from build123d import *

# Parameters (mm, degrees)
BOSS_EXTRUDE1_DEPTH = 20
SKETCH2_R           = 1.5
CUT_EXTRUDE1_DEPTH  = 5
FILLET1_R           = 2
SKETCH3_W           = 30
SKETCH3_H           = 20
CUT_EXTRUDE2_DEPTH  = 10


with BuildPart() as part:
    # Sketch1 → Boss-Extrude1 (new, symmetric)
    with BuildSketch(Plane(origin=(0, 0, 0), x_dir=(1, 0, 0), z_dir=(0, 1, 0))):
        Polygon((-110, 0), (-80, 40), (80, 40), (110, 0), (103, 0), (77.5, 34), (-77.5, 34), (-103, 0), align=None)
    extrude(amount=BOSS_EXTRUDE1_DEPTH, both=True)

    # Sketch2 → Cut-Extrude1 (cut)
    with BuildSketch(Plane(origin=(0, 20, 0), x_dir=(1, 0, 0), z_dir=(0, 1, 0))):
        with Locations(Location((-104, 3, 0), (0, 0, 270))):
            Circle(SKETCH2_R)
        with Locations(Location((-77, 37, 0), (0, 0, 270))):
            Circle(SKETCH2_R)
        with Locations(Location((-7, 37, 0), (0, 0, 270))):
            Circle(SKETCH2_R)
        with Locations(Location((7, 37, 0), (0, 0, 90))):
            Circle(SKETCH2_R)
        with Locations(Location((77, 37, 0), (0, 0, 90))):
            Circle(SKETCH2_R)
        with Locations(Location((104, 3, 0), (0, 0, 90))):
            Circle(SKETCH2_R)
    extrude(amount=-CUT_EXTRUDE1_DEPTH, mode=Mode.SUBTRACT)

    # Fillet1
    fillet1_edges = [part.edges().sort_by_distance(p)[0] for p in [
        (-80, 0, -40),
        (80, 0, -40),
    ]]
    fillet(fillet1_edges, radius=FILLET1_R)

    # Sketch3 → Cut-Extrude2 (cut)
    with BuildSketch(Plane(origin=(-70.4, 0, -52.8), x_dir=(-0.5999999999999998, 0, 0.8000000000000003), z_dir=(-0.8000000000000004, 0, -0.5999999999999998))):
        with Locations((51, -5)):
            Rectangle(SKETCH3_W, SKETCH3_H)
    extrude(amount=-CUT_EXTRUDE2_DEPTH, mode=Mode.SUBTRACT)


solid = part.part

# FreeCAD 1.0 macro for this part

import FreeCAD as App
import Part
import Sketcher
Q = App.Units.Quantity


def edges_at(feature, points):
    """Names of the edges that pass closest to the given points."""
    edges = feature.Shape.Edges
    near = lambda p: min(range(len(edges)), key=lambda i: edges[i].distToShape(Part.Vertex(*p))[0])
    return sorted({f"Edge{near(p) + 1}" for p in points})


def add_polygon(sketch, points):
    """Adds a closed chain of lines whose ends are joined by coincident constraints."""
    first, n = sketch.GeometryCount, len(points)
    for a, b in zip(points, points[1:] + points[:1]):
        sketch.addGeometry(Part.LineSegment(App.Vector(*a, 0), App.Vector(*b, 0)), False)
    for i in range(n):
        sketch.addConstraint(Sketcher.Constraint("Coincident", first + i, 2, first + (i + 1) % n, 1))

doc = App.newDocument("Part")
body = doc.addObject("PartDesign::Body", "Body")

# Sketch on XZ plane
sketch1 = doc.addObject("Sketcher::SketchObject", "Sketch")
body.addObject(sketch1)
sketch1.AttachmentSupport = (doc.XZ_Plane, [""])
sketch1.MapMode = "FlatFace"
add_polygon(sketch1, [(-80, -40), (-110, 0), (-103, 0), (-78, -34), (78, -34), (103, 0), (110, 0), (80, -40)])  # lines 0-7
sketch1.addConstraint(Sketcher.Constraint("Horizontal", 1))
sketch1.addConstraint(Sketcher.Constraint("Horizontal", 3))
sketch1.addConstraint(Sketcher.Constraint("Horizontal", 5))
sketch1.addConstraint(Sketcher.Constraint("Horizontal", 7))
sketch1.addConstraint(Sketcher.Constraint("Symmetric", 1, 2, 4, 2, -1, 1))
sketch1.addConstraint(Sketcher.Constraint("Symmetric", 0, 2, 5, 2, -2))
sketch1.addConstraint(Sketcher.Constraint("Parallel", 0, 2))
sketch1.addConstraint(Sketcher.Constraint("Parallel", 4, 6))
sketch1.addConstraint(Sketcher.Constraint("Equal", 2, 4))
sketch1.addConstraint(Sketcher.Constraint("DistanceX", 1, 1, 1, 2, Q("7 mm")))
sketch1.addConstraint(Sketcher.Constraint("DistanceX", 3, 1, 3, 2, Q("155 mm")))
sketch1.addConstraint(Sketcher.Constraint("DistanceX", 7, 2, 7, 1, Q("160 mm")))
sketch1.addConstraint(Sketcher.Constraint("Distance", 0, Q("50 mm")))
sketch1.addConstraint(Sketcher.Constraint("DistanceX", 0, 2, -1, 1, Q("110 mm")))
pad1 = doc.addObject("PartDesign::Pad", "Pad")
body.addObject(pad1)
pad1.Profile = sketch1
pad1.Length = 40
pad1.Midplane = True

# Sketch on XZ plane
sketch2 = doc.addObject("Sketcher::SketchObject", "Sketch001")
body.addObject(sketch2)
sketch2.AttachmentSupport = (doc.XZ_Plane, [""])
sketch2.MapMode = "FlatFace"
sketch2.AttachmentOffset = App.Placement(App.Vector(0, 0, -20), App.Rotation())
sketch2.addGeometry(Part.Circle(App.Vector(-104, -3, 0), App.Vector(0, 0, 1), 1.5), False)
sketch2.addGeometry(Part.Circle(App.Vector(-77, -37, 0), App.Vector(0, 0, 1), 1.5), False)
sketch2.addGeometry(Part.Circle(App.Vector(-7, -37, 0), App.Vector(0, 0, 1), 1.5), False)
sketch2.addGeometry(Part.Circle(App.Vector(7, -37, 0), App.Vector(0, 0, 1), 1.5), False)
sketch2.addGeometry(Part.Circle(App.Vector(77, -37, 0), App.Vector(0, 0, 1), 1.5), False)
sketch2.addGeometry(Part.Circle(App.Vector(104, -3, 0), App.Vector(0, 0, 1), 1.5), False)
sketch2.addConstraint(Sketcher.Constraint("Equal", 0, 1))
sketch2.addConstraint(Sketcher.Constraint("Equal", 1, 2))
sketch2.addConstraint(Sketcher.Constraint("Equal", 2, 3))
sketch2.addConstraint(Sketcher.Constraint("Equal", 3, 4))
sketch2.addConstraint(Sketcher.Constraint("Equal", 4, 5))
sketch2.addConstraint(Sketcher.Constraint("Symmetric", 2, 3, 3, 3, -2))
sketch2.addConstraint(Sketcher.Constraint("Symmetric", 1, 3, 4, 3, -2))
sketch2.addConstraint(Sketcher.Constraint("Symmetric", 0, 3, 5, 3, -2))
sketch2.addConstraint(Sketcher.Constraint("Horizontal", 1, 3, 2, 3))
sketch2.addConstraint(Sketcher.Constraint("Diameter", 0, Q("3 mm")))
sketch2.addConstraint(Sketcher.Constraint("DistanceX", 0, 3, -1, 1, Q("104 mm")))
sketch2.addConstraint(Sketcher.Constraint("DistanceY", 0, 3, -1, 1, Q("3 mm")))
sketch2.addConstraint(Sketcher.Constraint("DistanceX", 1, 3, -1, 1, Q("77 mm")))
sketch2.addConstraint(Sketcher.Constraint("DistanceY", 1, 3, -1, 1, Q("37 mm")))
sketch2.addConstraint(Sketcher.Constraint("DistanceX", 2, 3, -1, 1, Q("7 mm")))
pocket1 = doc.addObject("PartDesign::Pocket", "Pocket")
body.addObject(pocket1)
pocket1.Profile = sketch2
pocket1.Length = 5
pocket1.Reversed = True
doc.recompute()

fillet = doc.addObject("PartDesign::Fillet", "Fillet")
body.addObject(fillet)
fillet.Base = (pocket1, edges_at(pocket1, [(-80, 0, -40), (80, 0, -40)]))
fillet.Radius = 2

# Sketch on an angled plane
sketch3 = doc.addObject("Sketcher::SketchObject", "Sketch002")
body.addObject(sketch3)
sketch3.Placement = App.Placement(App.Vector(-70.4, 0, -52.8), App.Rotation(App.Vector(-0.6, 0, 0.8), App.Vector(0, 1, 0), App.Vector(-0.8, 0, -0.6), "ZXY"))
add_polygon(sketch3, [(36, 5), (36, -15), (66, -15), (66, 5)])  # lines 0-3
sketch3.addConstraint(Sketcher.Constraint("Vertical", 0))
sketch3.addConstraint(Sketcher.Constraint("Horizontal", 1))
sketch3.addConstraint(Sketcher.Constraint("Vertical", 2))
sketch3.addConstraint(Sketcher.Constraint("Horizontal", 3))
sketch3.addConstraint(Sketcher.Constraint("DistanceX", 1, 1, 1, 2, Q("30 mm")))
sketch3.addConstraint(Sketcher.Constraint("DistanceY", 0, 2, 0, 1, Q("20 mm")))
sketch3.addConstraint(Sketcher.Constraint("DistanceX", -1, 1, 0, 2, Q("36 mm")))
sketch3.addConstraint(Sketcher.Constraint("DistanceY", 0, 2, -1, 1, Q("15 mm")))
pocket2 = doc.addObject("PartDesign::Pocket", "Pocket001")
body.addObject(pocket2)
pocket2.Profile = sketch3
pocket2.Length = 10

doc.recompute()
